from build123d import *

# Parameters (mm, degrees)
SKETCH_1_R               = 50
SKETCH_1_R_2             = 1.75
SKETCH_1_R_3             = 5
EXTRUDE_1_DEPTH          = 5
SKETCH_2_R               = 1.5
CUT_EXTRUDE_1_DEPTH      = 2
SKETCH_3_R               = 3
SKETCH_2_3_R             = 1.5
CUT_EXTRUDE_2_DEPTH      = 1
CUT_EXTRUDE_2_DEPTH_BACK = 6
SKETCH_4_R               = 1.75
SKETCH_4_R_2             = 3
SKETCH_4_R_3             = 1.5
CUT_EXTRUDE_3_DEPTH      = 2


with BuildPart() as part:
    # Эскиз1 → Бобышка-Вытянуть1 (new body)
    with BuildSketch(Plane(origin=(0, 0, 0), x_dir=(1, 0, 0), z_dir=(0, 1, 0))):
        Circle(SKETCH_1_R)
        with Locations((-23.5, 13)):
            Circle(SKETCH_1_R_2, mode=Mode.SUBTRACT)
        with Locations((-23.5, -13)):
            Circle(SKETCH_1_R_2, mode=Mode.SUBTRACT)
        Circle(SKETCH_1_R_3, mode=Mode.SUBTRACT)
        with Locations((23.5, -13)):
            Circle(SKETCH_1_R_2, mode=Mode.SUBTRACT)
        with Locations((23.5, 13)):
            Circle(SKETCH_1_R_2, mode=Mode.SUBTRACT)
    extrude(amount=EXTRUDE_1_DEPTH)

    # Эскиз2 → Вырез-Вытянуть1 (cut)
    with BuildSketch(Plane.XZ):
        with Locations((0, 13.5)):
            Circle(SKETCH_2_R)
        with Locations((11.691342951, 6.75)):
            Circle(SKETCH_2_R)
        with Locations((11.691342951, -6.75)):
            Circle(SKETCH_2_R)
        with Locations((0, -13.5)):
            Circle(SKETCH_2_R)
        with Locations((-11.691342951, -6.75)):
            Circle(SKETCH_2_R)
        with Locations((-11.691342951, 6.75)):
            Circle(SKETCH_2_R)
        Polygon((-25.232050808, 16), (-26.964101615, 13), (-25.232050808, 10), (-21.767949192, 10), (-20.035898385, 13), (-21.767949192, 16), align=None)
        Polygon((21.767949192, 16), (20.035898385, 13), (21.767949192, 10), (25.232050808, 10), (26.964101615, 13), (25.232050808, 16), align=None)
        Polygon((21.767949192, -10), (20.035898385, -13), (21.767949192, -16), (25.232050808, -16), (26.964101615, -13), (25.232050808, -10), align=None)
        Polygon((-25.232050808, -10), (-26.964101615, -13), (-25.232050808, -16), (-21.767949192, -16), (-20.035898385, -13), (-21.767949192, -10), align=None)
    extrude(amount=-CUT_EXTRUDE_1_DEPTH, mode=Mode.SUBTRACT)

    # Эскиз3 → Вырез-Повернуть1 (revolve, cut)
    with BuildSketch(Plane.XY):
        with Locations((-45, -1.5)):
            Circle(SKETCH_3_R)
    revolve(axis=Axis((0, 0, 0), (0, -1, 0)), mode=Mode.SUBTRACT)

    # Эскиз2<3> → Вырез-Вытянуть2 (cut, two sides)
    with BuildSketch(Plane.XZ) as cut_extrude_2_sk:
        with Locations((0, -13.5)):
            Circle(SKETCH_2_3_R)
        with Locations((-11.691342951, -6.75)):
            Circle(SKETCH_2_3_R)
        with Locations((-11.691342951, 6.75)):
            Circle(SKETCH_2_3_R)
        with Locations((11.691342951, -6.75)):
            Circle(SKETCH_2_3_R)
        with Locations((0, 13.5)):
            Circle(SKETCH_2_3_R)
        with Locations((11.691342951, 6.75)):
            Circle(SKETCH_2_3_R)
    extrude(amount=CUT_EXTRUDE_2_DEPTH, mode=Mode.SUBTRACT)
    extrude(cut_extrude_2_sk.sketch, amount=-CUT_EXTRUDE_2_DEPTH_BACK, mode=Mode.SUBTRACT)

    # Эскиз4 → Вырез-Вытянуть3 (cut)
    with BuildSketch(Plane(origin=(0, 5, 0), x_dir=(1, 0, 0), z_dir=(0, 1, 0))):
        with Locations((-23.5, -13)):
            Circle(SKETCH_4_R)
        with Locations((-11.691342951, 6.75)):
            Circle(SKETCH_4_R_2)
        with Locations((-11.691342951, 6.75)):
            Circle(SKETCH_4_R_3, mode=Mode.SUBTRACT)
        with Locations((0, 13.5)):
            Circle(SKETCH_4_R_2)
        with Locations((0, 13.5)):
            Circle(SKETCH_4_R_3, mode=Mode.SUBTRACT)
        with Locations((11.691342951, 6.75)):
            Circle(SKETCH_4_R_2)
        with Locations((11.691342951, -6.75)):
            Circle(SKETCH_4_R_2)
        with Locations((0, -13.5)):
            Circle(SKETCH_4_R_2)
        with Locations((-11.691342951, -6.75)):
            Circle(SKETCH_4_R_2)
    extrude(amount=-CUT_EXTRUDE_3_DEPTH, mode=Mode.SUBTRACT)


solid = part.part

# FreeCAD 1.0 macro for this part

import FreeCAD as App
import Part
import Sketcher
Q = App.Units.Quantity

doc = App.newDocument("Part")
body = doc.addObject("PartDesign::Body", "Body")

# Sketch on XZ plane
sketch1 = doc.addObject("Sketcher::SketchObject", "Sketch")
body.addObject(sketch1)
sketch1.AttachmentSupport = (doc.XZ_Plane, [""])
sketch1.MapMode = "FlatFace"
sketch1.addGeometry([
    Part.Circle(App.Vector(0, 0, 0), App.Vector(0, 0, 1), 50),  # 0
    Part.Circle(App.Vector(-23.5, 13, 0), App.Vector(0, 0, 1), 1.8),  # 1
    Part.Circle(App.Vector(23.5, 13, 0), App.Vector(0, 0, 1), 1.8),  # 2
    Part.Circle(App.Vector(-23.5, -13, 0), App.Vector(0, 0, 1), 1.8),  # 3
    Part.Circle(App.Vector(0, 0, 0), App.Vector(0, 0, 1), 5),  # 4
    Part.Circle(App.Vector(23.5, -13, 0), App.Vector(0, 0, 1), 1.8),  # 5
], False)
sketch1.addConstraint([
    Sketcher.Constraint("Coincident", 0, 3, -1, 1),
    Sketcher.Constraint("Coincident", 4, 3, -1, 1),
    Sketcher.Constraint("Equal", 1, 2),
    Sketcher.Constraint("Equal", 2, 3),
    Sketcher.Constraint("Equal", 3, 5),
    Sketcher.Constraint("Symmetric", 2, 3, 3, 3, -1, 1),
    Sketcher.Constraint("Symmetric", 1, 3, 5, 3, -1, 1),
    Sketcher.Constraint("Symmetric", 1, 3, 2, 3, -2),
    Sketcher.Constraint("Diameter", 0, Q("100 mm")),
    Sketcher.Constraint("Diameter", 4, Q("10 mm")),
    Sketcher.Constraint("Diameter", 1, Q("3.5 mm")),
    Sketcher.Constraint("DistanceY", -1, 1, 1, 3, Q("13 mm")),
    Sketcher.Constraint("DistanceX", 1, 3, 2, 3, Q("47 mm")),
])
pad1 = doc.addObject("PartDesign::Pad", "Pad")
body.addObject(pad1)
pad1.Profile = sketch1
pad1.Length = 5
pad1.Reversed = True

# Sketch on XZ plane
sketch2 = doc.addObject("Sketcher::SketchObject", "Sketch001")
body.addObject(sketch2)
sketch2.AttachmentSupport = (doc.XZ_Plane, [""])
sketch2.MapMode = "FlatFace"
sketch2.addGeometry([
    Part.Circle(App.Vector(0, 13.5, 0), App.Vector(0, 0, 1), 1.5),  # 0
    Part.Circle(App.Vector(11.7, 6.8, 0), App.Vector(0, 0, 1), 1.5),  # 1
    Part.Circle(App.Vector(11.7, -6.8, 0), App.Vector(0, 0, 1), 1.5),  # 2
    Part.Circle(App.Vector(0, -13.5, 0), App.Vector(0, 0, 1), 1.5),  # 3
    Part.Circle(App.Vector(-11.7, -6.8, 0), App.Vector(0, 0, 1), 1.5),  # 4
    Part.Circle(App.Vector(-11.7, 6.8, 0), App.Vector(0, 0, 1), 1.5),  # 5
    Part.LineSegment(App.Vector(-25.2, 16, 0), App.Vector(-27, 13, 0)),  # 6
    Part.LineSegment(App.Vector(-27, 13, 0), App.Vector(-25.2, 10, 0)),  # 7
    Part.LineSegment(App.Vector(-25.2, 10, 0), App.Vector(-21.8, 10, 0)),  # 8
    Part.LineSegment(App.Vector(-21.8, 10, 0), App.Vector(-20, 13, 0)),  # 9
    Part.LineSegment(App.Vector(-20, 13, 0), App.Vector(-21.8, 16, 0)),  # 10
    Part.LineSegment(App.Vector(-21.8, 16, 0), App.Vector(-25.2, 16, 0)),  # 11
    Part.LineSegment(App.Vector(21.8, 16, 0), App.Vector(20, 13, 0)),  # 12
    Part.LineSegment(App.Vector(20, 13, 0), App.Vector(21.8, 10, 0)),  # 13
    Part.LineSegment(App.Vector(21.8, 10, 0), App.Vector(25.2, 10, 0)),  # 14
    Part.LineSegment(App.Vector(25.2, 10, 0), App.Vector(27, 13, 0)),  # 15
    Part.LineSegment(App.Vector(27, 13, 0), App.Vector(25.2, 16, 0)),  # 16
    Part.LineSegment(App.Vector(25.2, 16, 0), App.Vector(21.8, 16, 0)),  # 17
    Part.LineSegment(App.Vector(21.8, -10, 0), App.Vector(20, -13, 0)),  # 18
    Part.LineSegment(App.Vector(20, -13, 0), App.Vector(21.8, -16, 0)),  # 19
    Part.LineSegment(App.Vector(21.8, -16, 0), App.Vector(25.2, -16, 0)),  # 20
    Part.LineSegment(App.Vector(25.2, -16, 0), App.Vector(27, -13, 0)),  # 21
    Part.LineSegment(App.Vector(27, -13, 0), App.Vector(25.2, -10, 0)),  # 22
    Part.LineSegment(App.Vector(25.2, -10, 0), App.Vector(21.8, -10, 0)),  # 23
    Part.LineSegment(App.Vector(-25.2, -10, 0), App.Vector(-27, -13, 0)),  # 24
    Part.LineSegment(App.Vector(-27, -13, 0), App.Vector(-25.2, -16, 0)),  # 25
    Part.LineSegment(App.Vector(-25.2, -16, 0), App.Vector(-21.8, -16, 0)),  # 26
    Part.LineSegment(App.Vector(-21.8, -16, 0), App.Vector(-20, -13, 0)),  # 27
    Part.LineSegment(App.Vector(-20, -13, 0), App.Vector(-21.8, -10, 0)),  # 28
    Part.LineSegment(App.Vector(-21.8, -10, 0), App.Vector(-25.2, -10, 0)),  # 29
], False)
sketch2.addConstraint([
    Sketcher.Constraint("Coincident", 6, 2, 7, 1),
    Sketcher.Constraint("Coincident", 7, 2, 8, 1),
    Sketcher.Constraint("Coincident", 8, 2, 9, 1),
    Sketcher.Constraint("Coincident", 9, 2, 10, 1),
    Sketcher.Constraint("Coincident", 10, 2, 11, 1),
    Sketcher.Constraint("Coincident", 11, 2, 6, 1),
    Sketcher.Constraint("Coincident", 12, 2, 13, 1),
    Sketcher.Constraint("Coincident", 13, 2, 14, 1),
    Sketcher.Constraint("Coincident", 14, 2, 15, 1),
    Sketcher.Constraint("Coincident", 15, 2, 16, 1),
    Sketcher.Constraint("Coincident", 16, 2, 17, 1),
    Sketcher.Constraint("Coincident", 17, 2, 12, 1),
    Sketcher.Constraint("Coincident", 18, 2, 19, 1),
    Sketcher.Constraint("Coincident", 19, 2, 20, 1),
    Sketcher.Constraint("Coincident", 20, 2, 21, 1),
    Sketcher.Constraint("Coincident", 21, 2, 22, 1),
    Sketcher.Constraint("Coincident", 22, 2, 23, 1),
    Sketcher.Constraint("Coincident", 23, 2, 18, 1),
    Sketcher.Constraint("Coincident", 24, 2, 25, 1),
    Sketcher.Constraint("Coincident", 25, 2, 26, 1),
    Sketcher.Constraint("Coincident", 26, 2, 27, 1),
    Sketcher.Constraint("Coincident", 27, 2, 28, 1),
    Sketcher.Constraint("Coincident", 28, 2, 29, 1),
    Sketcher.Constraint("Coincident", 29, 2, 24, 1),
    Sketcher.Constraint("Horizontal", 8),
    Sketcher.Constraint("Horizontal", 11),
    Sketcher.Constraint("Horizontal", 14),
    Sketcher.Constraint("Horizontal", 17),
    Sketcher.Constraint("Horizontal", 20),
    Sketcher.Constraint("Horizontal", 23),
    Sketcher.Constraint("Horizontal", 26),
    Sketcher.Constraint("Horizontal", 29),
    Sketcher.Constraint("Equal", 0, 1),
    Sketcher.Constraint("Equal", 1, 2),
    Sketcher.Constraint("Equal", 2, 3),
    Sketcher.Constraint("Equal", 3, 4),
    Sketcher.Constraint("Equal", 4, 5),
    Sketcher.Constraint("Symmetric", 0, 3, 3, 3, -1, 1),
    Sketcher.Constraint("Symmetric", 1, 3, 4, 3, -1, 1),
    Sketcher.Constraint("Symmetric", 2, 3, 5, 3, -1, 1),
    Sketcher.Constraint("Symmetric", 9, 2, 18, 2, -1, 1),
    Sketcher.Constraint("Symmetric", 10, 2, 19, 2, -1, 1),
    Sketcher.Constraint("Symmetric", 6, 2, 21, 2, -1, 1),
    Sketcher.Constraint("Symmetric", 7, 2, 22, 2, -1, 1),
    Sketcher.Constraint("Symmetric", 15, 2, 24, 2, -1, 1),
    Sketcher.Constraint("Symmetric", 16, 2, 25, 2, -1, 1),
    Sketcher.Constraint("Symmetric", 12, 2, 27, 2, -1, 1),
    Sketcher.Constraint("Symmetric", 13, 2, 28, 2, -1, 1),
    Sketcher.Constraint("Symmetric", 2, 3, 4, 3, -2),
    Sketcher.Constraint("Symmetric", 9, 2, 12, 2, -2),
    Sketcher.Constraint("Symmetric", 8, 2, 13, 2, -2),
    Sketcher.Constraint("Symmetric", 6, 2, 15, 2, -2),
    Sketcher.Constraint("Symmetric", 11, 2, 16, 2, -2),
    Sketcher.Constraint("PointOnObject", 0, 3, -2),
    Sketcher.Constraint("Parallel", 6, 9),
    Sketcher.Constraint("Parallel", 7, 10),
    Sketcher.Constraint("Parallel", 9, 12),
    Sketcher.Constraint("Parallel", 10, 13),
    Sketcher.Constraint("Parallel", 12, 15),
    Sketcher.Constraint("Parallel", 15, 18),
    Sketcher.Constraint("Parallel", 18, 21),
    Sketcher.Constraint("Parallel", 21, 24),
    Sketcher.Constraint("Parallel", 24, 27),
    Sketcher.Constraint("Horizontal", 6, 2, 9, 2),
    Sketcher.Constraint("Vertical", 8, 2, 10, 2),
    Sketcher.Constraint("Diameter", 0, Q("3 mm")),
    Sketcher.Constraint("Angle", 6, Q("-120 deg")),
    Sketcher.Constraint("DistanceY", -1, 1, 6, 2, Q("13 mm")),
    Sketcher.Constraint("DistanceY", -1, 1, 7, 2, Q("10 mm")),
    Sketcher.Constraint("DistanceY", 3, 3, 0, 3, Q("27 mm")),
    Sketcher.Constraint("DistanceY", 2, 3, 1, 3, Q("13.5 mm")),
    Sketcher.Constraint("DistanceX", 8, 1, 8, 2, Q("3.464102 mm")),
    Sketcher.Constraint("DistanceX", 6, 2, -1, 1, Q("26.964102 mm")),
    Sketcher.Constraint("DistanceX", 6, 2, 5, 3, Q("15.272759 mm")),
])
pocket1 = doc.addObject("PartDesign::Pocket", "Pocket")
body.addObject(pocket1)
pocket1.Profile = sketch2
pocket1.Length = 2

# Sketch on XY plane
sketch3 = doc.addObject("Sketcher::SketchObject", "Sketch002")
body.addObject(sketch3)
sketch3.AttachmentSupport = (doc.XY_Plane, [""])
sketch3.MapMode = "FlatFace"
sketch3.addGeometry(Part.Circle(App.Vector(-45, -1.5, 0), App.Vector(0, 0, 1), 3), False)
sketch3.addConstraint([
    Sketcher.Constraint("Diameter", 0, Q("6 mm")),
    Sketcher.Constraint("DistanceX", 0, 3, -1, 1, Q("45 mm")),
    Sketcher.Constraint("DistanceY", 0, 3, -1, 1, Q("1.5 mm")),
])
groove = doc.addObject("PartDesign::Groove", "Groove")
body.addObject(groove)
groove.Profile = sketch3
groove.ReferenceAxis = (sketch3, ["V_Axis"])
groove.Angle = 360

# Sketch on XZ plane
sketch4 = doc.addObject("Sketcher::SketchObject", "Sketch003")
body.addObject(sketch4)
sketch4.AttachmentSupport = (doc.XZ_Plane, [""])
sketch4.MapMode = "FlatFace"
sketch4.addGeometry([
    Part.Circle(App.Vector(0, -13.5, 0), App.Vector(0, 0, 1), 1.5),  # 0
    Part.Circle(App.Vector(-11.7, -6.8, 0), App.Vector(0, 0, 1), 1.5),  # 1
    Part.Circle(App.Vector(-11.7, 6.8, 0), App.Vector(0, 0, 1), 1.5),  # 2
    Part.Circle(App.Vector(11.7, -6.8, 0), App.Vector(0, 0, 1), 1.5),  # 3
    Part.Circle(App.Vector(0, 13.5, 0), App.Vector(0, 0, 1), 1.5),  # 4
    Part.Circle(App.Vector(11.7, 6.8, 0), App.Vector(0, 0, 1), 1.5),  # 5
], False)
sketch4.addConstraint([
    Sketcher.Constraint("Equal", 0, 1),
    Sketcher.Constraint("Equal", 1, 2),
    Sketcher.Constraint("Equal", 2, 3),
    Sketcher.Constraint("Equal", 3, 4),
    Sketcher.Constraint("Equal", 4, 5),
    Sketcher.Constraint("Symmetric", 2, 3, 3, 3, -1, 1),
    Sketcher.Constraint("Symmetric", 0, 3, 4, 3, -1, 1),
    Sketcher.Constraint("Symmetric", 1, 3, 5, 3, -1, 1),
    Sketcher.Constraint("Symmetric", 1, 3, 3, 3, -2),
    Sketcher.Constraint("PointOnObject", 0, 3, -2),
    Sketcher.Constraint("Diameter", 0, Q("3 mm")),
    Sketcher.Constraint("DistanceY", 0, 3, 4, 3, Q("27 mm")),
    Sketcher.Constraint("DistanceY", 1, 3, 2, 3, Q("13.5 mm")),
    Sketcher.Constraint("DistanceX", 1, 3, -1, 1, Q("11.691343 mm")),
])
pocket2 = doc.addObject("PartDesign::Pocket", "Pocket001")
body.addObject(pocket2)
pocket2.Profile = sketch4
pocket2.Type = "ThroughAll"
pocket2.Midplane = True

# Sketch on XZ plane
sketch5 = doc.addObject("Sketcher::SketchObject", "Sketch004")
body.addObject(sketch5)
sketch5.AttachmentSupport = (doc.XZ_Plane, [""])
sketch5.MapMode = "FlatFace"
sketch5.AttachmentOffset = App.Placement(App.Vector(0, 0, -5), App.Rotation())
sketch5.addGeometry([
    Part.Circle(App.Vector(-23.5, 13, 0), App.Vector(0, 0, 1), 1.8),  # 0
    Part.Circle(App.Vector(-11.7, -6.8, 0), App.Vector(0, 0, 1), 3),  # 1
    Part.Circle(App.Vector(-11.7, -6.8, 0), App.Vector(0, 0, 1), 1.5),  # 2
    Part.Circle(App.Vector(0, -13.5, 0), App.Vector(0, 0, 1), 3),  # 3
    Part.Circle(App.Vector(0, -13.5, 0), App.Vector(0, 0, 1), 1.5),  # 4
    Part.Circle(App.Vector(11.7, -6.8, 0), App.Vector(0, 0, 1), 3),  # 5
    Part.Circle(App.Vector(11.7, 6.8, 0), App.Vector(0, 0, 1), 3),  # 6
    Part.Circle(App.Vector(0, 13.5, 0), App.Vector(0, 0, 1), 3),  # 7
    Part.Circle(App.Vector(-11.7, 6.8, 0), App.Vector(0, 0, 1), 3),  # 8
], False)
sketch5.addConstraint([
    Sketcher.Constraint("Coincident", 2, 3, 1, 3),
    Sketcher.Constraint("Coincident", 4, 3, 3, 3),
    Sketcher.Constraint("Equal", 1, 3),
    Sketcher.Constraint("Equal", 2, 4),
    Sketcher.Constraint("Equal", 3, 5),
    Sketcher.Constraint("Equal", 5, 6),
    Sketcher.Constraint("Equal", 6, 7),
    Sketcher.Constraint("Equal", 7, 8),
    Sketcher.Constraint("Symmetric", 1, 3, 6, 3, -1, 1),
    Sketcher.Constraint("Symmetric", 3, 3, 7, 3, -1, 1),
    Sketcher.Constraint("Symmetric", 5, 3, 8, 3, -1, 1),
    Sketcher.Constraint("Symmetric", 1, 3, 5, 3, -2),
    Sketcher.Constraint("PointOnObject", 3, 3, -2),
    Sketcher.Constraint("Diameter", 1, Q("6 mm")),
    Sketcher.Constraint("Diameter", 2, Q("3 mm")),
    Sketcher.Constraint("Diameter", 0, Q("3.5 mm")),
    Sketcher.Constraint("DistanceY", -1, 1, 0, 3, Q("13 mm")),
    Sketcher.Constraint("DistanceX", 0, 3, -1, 1, Q("23.5 mm")),
    Sketcher.Constraint("DistanceY", 3, 3, -1, 1, Q("13.5 mm")),
    Sketcher.Constraint("DistanceY", 5, 3, 6, 3, Q("13.5 mm")),
    Sketcher.Constraint("DistanceX", 1, 3, -1, 1, Q("11.691343 mm")),
])
pocket3 = doc.addObject("PartDesign::Pocket", "Pocket002")
body.addObject(pocket3)
pocket3.Profile = sketch5
pocket3.Length = 2
pocket3.Reversed = True

doc.recompute()
